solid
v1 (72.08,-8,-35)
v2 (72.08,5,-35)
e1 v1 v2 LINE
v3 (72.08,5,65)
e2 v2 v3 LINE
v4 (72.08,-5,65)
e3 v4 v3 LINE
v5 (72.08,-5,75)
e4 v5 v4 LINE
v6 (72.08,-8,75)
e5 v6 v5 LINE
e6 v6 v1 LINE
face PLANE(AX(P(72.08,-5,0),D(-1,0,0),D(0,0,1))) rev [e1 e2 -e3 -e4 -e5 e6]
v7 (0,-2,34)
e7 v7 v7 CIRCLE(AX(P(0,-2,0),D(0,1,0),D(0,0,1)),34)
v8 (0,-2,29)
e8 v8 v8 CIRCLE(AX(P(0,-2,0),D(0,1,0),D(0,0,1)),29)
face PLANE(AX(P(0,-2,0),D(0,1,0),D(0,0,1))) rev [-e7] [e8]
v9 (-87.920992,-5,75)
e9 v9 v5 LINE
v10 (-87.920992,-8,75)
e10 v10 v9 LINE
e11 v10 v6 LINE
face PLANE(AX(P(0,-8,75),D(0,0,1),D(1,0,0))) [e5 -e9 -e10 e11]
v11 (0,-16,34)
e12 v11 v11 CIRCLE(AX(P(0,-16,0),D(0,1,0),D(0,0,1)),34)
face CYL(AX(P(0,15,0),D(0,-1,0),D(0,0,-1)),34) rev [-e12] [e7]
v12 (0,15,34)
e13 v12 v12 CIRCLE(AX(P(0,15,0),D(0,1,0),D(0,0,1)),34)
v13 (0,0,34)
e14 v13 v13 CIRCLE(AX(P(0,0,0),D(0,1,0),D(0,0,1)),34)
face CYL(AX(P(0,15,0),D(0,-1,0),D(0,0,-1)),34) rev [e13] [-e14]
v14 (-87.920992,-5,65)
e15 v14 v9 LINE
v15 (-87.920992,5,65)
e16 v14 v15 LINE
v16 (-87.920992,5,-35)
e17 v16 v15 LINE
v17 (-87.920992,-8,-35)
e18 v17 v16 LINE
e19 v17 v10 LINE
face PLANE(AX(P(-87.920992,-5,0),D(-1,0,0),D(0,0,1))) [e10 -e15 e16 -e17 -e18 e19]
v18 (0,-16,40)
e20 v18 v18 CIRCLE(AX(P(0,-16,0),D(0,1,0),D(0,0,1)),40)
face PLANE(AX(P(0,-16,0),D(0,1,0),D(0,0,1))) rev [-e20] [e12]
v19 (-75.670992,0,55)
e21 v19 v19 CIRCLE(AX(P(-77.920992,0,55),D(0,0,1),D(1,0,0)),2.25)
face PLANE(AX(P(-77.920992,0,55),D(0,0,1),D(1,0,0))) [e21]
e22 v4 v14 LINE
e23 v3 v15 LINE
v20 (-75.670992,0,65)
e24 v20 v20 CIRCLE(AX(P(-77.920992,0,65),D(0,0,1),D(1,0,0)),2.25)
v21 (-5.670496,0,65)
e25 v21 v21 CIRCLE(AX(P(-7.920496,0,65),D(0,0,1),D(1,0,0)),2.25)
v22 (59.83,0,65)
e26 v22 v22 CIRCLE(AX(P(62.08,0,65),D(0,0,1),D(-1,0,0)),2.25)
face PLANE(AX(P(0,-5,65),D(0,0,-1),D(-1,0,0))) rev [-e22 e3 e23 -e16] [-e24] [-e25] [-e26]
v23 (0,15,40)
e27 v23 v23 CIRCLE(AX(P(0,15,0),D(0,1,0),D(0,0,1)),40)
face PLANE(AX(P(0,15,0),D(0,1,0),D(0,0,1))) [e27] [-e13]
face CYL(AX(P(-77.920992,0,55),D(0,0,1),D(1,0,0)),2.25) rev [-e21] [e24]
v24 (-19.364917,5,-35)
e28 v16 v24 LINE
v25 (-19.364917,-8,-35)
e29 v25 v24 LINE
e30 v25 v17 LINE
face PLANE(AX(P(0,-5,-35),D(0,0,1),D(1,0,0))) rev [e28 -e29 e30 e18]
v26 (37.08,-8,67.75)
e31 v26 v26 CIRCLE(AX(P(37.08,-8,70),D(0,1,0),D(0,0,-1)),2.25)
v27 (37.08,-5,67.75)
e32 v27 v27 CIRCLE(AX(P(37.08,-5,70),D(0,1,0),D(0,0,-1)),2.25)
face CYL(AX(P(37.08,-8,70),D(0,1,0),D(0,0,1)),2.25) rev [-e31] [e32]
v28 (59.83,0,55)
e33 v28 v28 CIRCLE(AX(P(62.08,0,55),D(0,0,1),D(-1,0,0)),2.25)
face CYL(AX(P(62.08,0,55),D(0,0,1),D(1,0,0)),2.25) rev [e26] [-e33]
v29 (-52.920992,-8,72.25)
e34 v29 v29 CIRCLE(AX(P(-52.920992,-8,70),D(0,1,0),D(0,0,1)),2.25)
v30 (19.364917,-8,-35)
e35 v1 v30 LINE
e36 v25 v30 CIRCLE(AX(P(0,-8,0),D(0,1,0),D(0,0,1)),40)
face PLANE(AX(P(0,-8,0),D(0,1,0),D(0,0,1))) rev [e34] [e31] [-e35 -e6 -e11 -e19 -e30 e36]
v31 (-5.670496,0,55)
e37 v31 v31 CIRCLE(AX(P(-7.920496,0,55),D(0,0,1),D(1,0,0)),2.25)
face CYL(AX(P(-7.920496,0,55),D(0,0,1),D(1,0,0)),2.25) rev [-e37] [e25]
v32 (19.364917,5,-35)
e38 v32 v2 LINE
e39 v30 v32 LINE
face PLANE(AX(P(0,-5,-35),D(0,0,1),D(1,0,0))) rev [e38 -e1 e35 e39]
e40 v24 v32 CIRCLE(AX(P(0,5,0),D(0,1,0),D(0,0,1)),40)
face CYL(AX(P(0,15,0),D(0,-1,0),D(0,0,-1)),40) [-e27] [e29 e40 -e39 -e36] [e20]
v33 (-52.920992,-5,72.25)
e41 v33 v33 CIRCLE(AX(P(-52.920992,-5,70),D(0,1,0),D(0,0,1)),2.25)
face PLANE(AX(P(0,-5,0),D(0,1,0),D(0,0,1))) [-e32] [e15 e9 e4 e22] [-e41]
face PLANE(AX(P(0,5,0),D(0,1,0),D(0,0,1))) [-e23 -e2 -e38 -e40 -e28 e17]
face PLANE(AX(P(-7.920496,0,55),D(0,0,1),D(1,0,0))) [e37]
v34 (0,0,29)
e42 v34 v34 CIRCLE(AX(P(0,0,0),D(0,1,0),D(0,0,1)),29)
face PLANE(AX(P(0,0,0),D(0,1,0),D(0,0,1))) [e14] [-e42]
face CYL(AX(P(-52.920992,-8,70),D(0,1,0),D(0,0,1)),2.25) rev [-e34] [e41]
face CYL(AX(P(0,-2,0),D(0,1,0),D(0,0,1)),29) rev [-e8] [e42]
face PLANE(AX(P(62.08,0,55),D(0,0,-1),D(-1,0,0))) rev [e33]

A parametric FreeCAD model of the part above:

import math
import FreeCAD as App
import Part
import Sketcher

V = App.Vector
Q = App.Units.Quantity

doc = App.newDocument("Part")
body = doc.addObject("PartDesign::Body", "Body")

sketch1 = doc.addObject("Sketcher::SketchObject", "Sketch")
body.addObject(sketch1)
sketch1.AttachmentSupport = (doc.XZ_Plane, [""])
sketch1.MapMode = "FlatFace"
sketch1.addGeometry([
    Part.Circle(V(0, 0, 0), V(0, 0, 1), 40),
    Part.Circle(V(0, 0, 0), V(0, 0, 1), 34),
], False)
sketch1.addConstraint([
    Sketcher.Constraint("Coincident", 0, 3, -1, 1),
    Sketcher.Constraint("Coincident", 1, 3, -1, 1),
    Sketcher.Constraint("Diameter", 0, Q("80 mm")),
    Sketcher.Constraint("Diameter", 1, Q("68 mm")),
])
pad1 = doc.addObject("PartDesign::Pad", "Pad")
body.addObject(pad1)
pad1.Profile = sketch1
pad1.Length = 15
pad1.Reversed = True

sketch2 = doc.addObject("Sketcher::SketchObject", "Sketch001")
body.addObject(sketch2)
sketch2.AttachmentSupport = (doc.XZ_Plane, [""])
sketch2.MapMode = "FlatFace"
sketch2.addGeometry([
    Part.ArcOfCircle(Part.Circle(V(0, 0, 0), V(0, 0, 1), 40), math.radians(-119), math.radians(-61)),
    Part.ArcOfCircle(Part.Circle(V(0, 0, 0), V(0, 0, 1), 40), math.radians(0), math.radians(241)),
    Part.ArcOfCircle(Part.Circle(V(0, 0, 0), V(0, 0, 1), 40), math.radians(-61), math.radians(0)),
    Part.Circle(V(0, 0, 0), V(0, 0, 1), 34),
], False)
sketch2.addConstraint([
    Sketcher.Constraint("Tangent", 0, 1, 1, 2),
    Sketcher.Constraint("Tangent", 1, 1, 2, 2),
    Sketcher.Constraint("Tangent", 2, 1, 0, 2),
    Sketcher.Constraint("Coincident", 0, 3, -1, 1),
    Sketcher.Constraint("Coincident", 3, 3, -1, 1),
    Sketcher.Constraint("PointOnObject", 1, 1, -1),
    Sketcher.Constraint("Horizontal", 0, 1, 2, 1),
    Sketcher.Constraint("Diameter", 3, Q("68 mm")),
    Sketcher.Constraint("Radius", 0, Q("40 mm")),
    Sketcher.Constraint("DistanceY", 0, 1, -1, 1, Q("35 mm")),
])
pad2 = doc.addObject("PartDesign::Pad", "Pad001")
body.addObject(pad2)
pad2.Profile = sketch2
pad2.Length = 16

sketch3 = doc.addObject("Sketcher::SketchObject", "Sketch002")
body.addObject(sketch3)
sketch3.AttachmentSupport = (doc.XZ_Plane, [""])
sketch3.MapMode = "FlatFace"
sketch3.addGeometry([
    Part.Circle(V(0, 0, 0), V(0, 0, 1), 34),
    Part.Circle(V(0, 0, 0), V(0, 0, 1), 29),
], False)
sketch3.addConstraint([
    Sketcher.Constraint("Coincident", 0, 3, -1, 1),
    Sketcher.Constraint("Coincident", 1, 3, -1, 1),
    Sketcher.Constraint("Diameter", 0, Q("68 mm")),
    Sketcher.Constraint("Diameter", 1, Q("58 mm")),
])
pad3 = doc.addObject("PartDesign::Pad", "Pad002")
body.addObject(pad3)
pad3.Profile = sketch3
pad3.Length = 2

sketch4 = doc.addObject("Sketcher::SketchObject", "Sketch003")
body.addObject(sketch4)
sketch4.AttachmentSupport = (doc.XZ_Plane, [""])
sketch4.MapMode = "FlatFace"
sketch4.addGeometry([
    Part.LineSegment(V(-19, -35, 0), V(-88, -35, 0)),
    Part.LineSegment(V(-88, -35, 0), V(-88, 65, 0)),
    Part.LineSegment(V(-88, 65, 0), V(72, 65, 0)),
    Part.LineSegment(V(72, 65, 0), V(72, -35, 0)),
    Part.LineSegment(V(72, -35, 0), V(19, -35, 0)),
    Part.ArcOfCircle(Part.Circle(V(0, 0, 0), V(0, 0, 1), 40), math.radians(-61), math.radians(0)),
    Part.ArcOfCircle(Part.Circle(V(0, 0, 0), V(0, 0, 1), 40), math.radians(0), math.radians(241)),
], False)
sketch4.addConstraint([
    Sketcher.Constraint("Coincident", 0, 2, 1, 1),
    Sketcher.Constraint("Coincident", 1, 2, 2, 1),
    Sketcher.Constraint("Coincident", 2, 2, 3, 1),
    Sketcher.Constraint("Coincident", 3, 2, 4, 1),
    Sketcher.Constraint("Coincident", 4, 2, 5, 1),
    Sketcher.Constraint("Tangent", 5, 2, 6, 1),
    Sketcher.Constraint("Coincident", 6, 2, 0, 1),
    Sketcher.Constraint("Horizontal", 0),
    Sketcher.Constraint("Vertical", 1),
    Sketcher.Constraint("Horizontal", 2),
    Sketcher.Constraint("Vertical", 3),
    Sketcher.Constraint("Horizontal", 4),
    Sketcher.Constraint("Coincident", 5, 3, -1, 1),
    Sketcher.Constraint("Equal", 5, 6),
    Sketcher.Constraint("PointOnObject", 5, 2, -1),
    Sketcher.Constraint("Horizontal", 0, 2, 3, 2),
    Sketcher.Constraint("Radius", 5, Q("40 mm")),
    Sketcher.Constraint("DistanceY", 1, 1, 1, 2, Q("100 mm")),
    Sketcher.Constraint("DistanceY", 0, 2, -1, 1, Q("35 mm")),
    Sketcher.Constraint("DistanceX", -1, 1, 2, 2, Q("72.08 mm")),
    Sketcher.Constraint("DistanceX", 0, 2, 0, 1, Q("68.556076 mm")),
])
pad4 = doc.addObject("PartDesign::Pad", "Pad003")
body.addObject(pad4)
pad4.Profile = sketch4
pad4.Type = "TwoLengths"
pad4.Length = 5
pad4.Length2 = 5
pad4.Reversed = True

sketch5 = doc.addObject("Sketcher::SketchObject", "Sketch004")
body.addObject(sketch5)
sketch5.AttachmentSupport = (doc.XY_Plane, [""])
sketch5.MapMode = "FlatFace"
sketch5.AttachmentOffset = App.Placement(V(0, 0, 65), App.Rotation())
sketch5.addGeometry([
    Part.Circle(V(-77.9, 0, 0), V(0, 0, 1), 2.2),
    Part.Circle(V(-7.9, 0, 0), V(0, 0, 1), 2.2),
    Part.Circle(V(62.1, 0, 0), V(0, 0, 1), 2.2),
], False)
sketch5.addConstraint([
    Sketcher.Constraint("Equal", 0, 1),
    Sketcher.Constraint("Equal", 1, 2),
    Sketcher.Constraint("PointOnObject", 0, 3, -1),
    Sketcher.Constraint("PointOnObject", 1, 3, -1),
    Sketcher.Constraint("PointOnObject", 2, 3, -1),
    Sketcher.Constraint("Diameter", 0, Q("4.5 mm")),
    Sketcher.Constraint("DistanceX", -1, 1, 2, 3, Q("62.08 mm")),
    Sketcher.Constraint("DistanceX", 0, 3, -1, 1, Q("77.920992 mm")),
    Sketcher.Constraint("DistanceX", 1, 3, -1, 1, Q("7.920496 mm")),
])
pocket1 = doc.addObject("PartDesign::Pocket", "Pocket")
body.addObject(pocket1)
pocket1.Profile = sketch5
pocket1.Length = 10

sketch6 = doc.addObject("Sketcher::SketchObject", "Sketch005")
body.addObject(sketch6)
sketch6.AttachmentSupport = (doc.XZ_Plane, [""])
sketch6.MapMode = "FlatFace"
sketch6.AttachmentOffset = App.Placement(V(0, 0, 5), App.Rotation())
sketch6.addGeometry([
    Part.LineSegment(V(72, -35, 0), V(19, -35, 0)),
    Part.ArcOfCircle(Part.Circle(V(0, 0, 0), V(0, 0, 1), 40), math.radians(-61), math.radians(241)),
    Part.LineSegment(V(-19, -35, 0), V(-88, -35, 0)),
    Part.LineSegment(V(-88, -35, 0), V(-88, 75, 0)),
    Part.LineSegment(V(-88, 75, 0), V(72, 75, 0)),
    Part.LineSegment(V(72, 75, 0), V(72, -35, 0)),
], False)
sketch6.addConstraint([
    Sketcher.Constraint("Coincident", 0, 2, 1, 1),
    Sketcher.Constraint("Coincident", 1, 2, 2, 1),
    Sketcher.Constraint("Coincident", 2, 2, 3, 1),
    Sketcher.Constraint("Coincident", 3, 2, 4, 1),
    Sketcher.Constraint("Coincident", 4, 2, 5, 1),
    Sketcher.Constraint("Coincident", 5, 2, 0, 1),
    Sketcher.Constraint("Horizontal", 0),
    Sketcher.Constraint("Horizontal", 2),
    Sketcher.Constraint("Vertical", 3),
    Sketcher.Constraint("Horizontal", 4),
    Sketcher.Constraint("Vertical", 5),
    Sketcher.Constraint("Coincident", 1, 3, -1, 1),
    Sketcher.Constraint("Horizontal", 0, 2, 1, 2),
    Sketcher.Constraint("Radius", 1, Q("40 mm")),
    Sketcher.Constraint("DistanceY", 3, 1, 3, 2, Q("110 mm")),
    Sketcher.Constraint("DistanceY", 0, 2, -1, 1, Q("35 mm")),
    Sketcher.Constraint("DistanceX", -1, 1, 4, 2, Q("72.08 mm")),
    Sketcher.Constraint("DistanceX", 2, 2, 2, 1, Q("68.556076 mm")),
])
pad5 = doc.addObject("PartDesign::Pad", "Pad004")
body.addObject(pad5)
pad5.Profile = sketch6
pad5.Length = 3

sketch7 = doc.addObject("Sketcher::SketchObject", "Sketch006")
body.addObject(sketch7)
sketch7.AttachmentSupport = (doc.XZ_Plane, [""])
sketch7.MapMode = "FlatFace"
sketch7.AttachmentOffset = App.Placement(V(0, 0, 5), App.Rotation())
sketch7.addGeometry([
    Part.Circle(V(-52.9, 70, 0), V(0, 0, 1), 2.2),
    Part.Circle(V(37.1, 70, 0), V(0, 0, 1), 2.2),
], False)
sketch7.addConstraint([
    Sketcher.Constraint("Equal", 0, 1),
    Sketcher.Constraint("Horizontal", 0, 3, 1, 3),
    Sketcher.Constraint("Diameter", 0, Q("4.5 mm")),
    Sketcher.Constraint("DistanceY", -1, 1, 0, 3, Q("70 mm")),
    Sketcher.Constraint("DistanceX", -1, 1, 1, 3, Q("37.08 mm")),
    Sketcher.Constraint("DistanceX", 0, 3, -1, 1, Q("52.920992 mm")),
])
pocket2 = doc.addObject("PartDesign::Pocket", "Pocket001")
body.addObject(pocket2)
pocket2.Profile = sketch7
pocket2.Length = 3
pocket2.Reversed = True

doc.recompute()
